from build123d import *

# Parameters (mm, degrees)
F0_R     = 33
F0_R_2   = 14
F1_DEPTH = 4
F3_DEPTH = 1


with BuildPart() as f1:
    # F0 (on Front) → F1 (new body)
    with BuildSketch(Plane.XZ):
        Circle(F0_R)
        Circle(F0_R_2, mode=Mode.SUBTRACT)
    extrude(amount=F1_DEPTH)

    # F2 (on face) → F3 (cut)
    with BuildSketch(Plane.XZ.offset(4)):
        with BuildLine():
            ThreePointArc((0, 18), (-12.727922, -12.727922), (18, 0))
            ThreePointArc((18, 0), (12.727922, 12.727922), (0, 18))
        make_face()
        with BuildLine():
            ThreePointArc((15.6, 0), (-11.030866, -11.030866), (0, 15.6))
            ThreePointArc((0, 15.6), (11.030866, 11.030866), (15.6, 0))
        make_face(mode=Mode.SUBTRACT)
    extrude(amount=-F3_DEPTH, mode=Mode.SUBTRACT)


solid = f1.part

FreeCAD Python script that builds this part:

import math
import FreeCAD as App
import Part
import Sketcher

V = App.Vector

doc = App.newDocument("Part")
params = doc.addObject("Spreadsheet::Sheet", "Params")
for row, (alias, value) in enumerate([
    ("sketch1_diameter", "66 mm"),
    ("sketch1_diameter2", "28 mm"),
    ("pad1_length", "4 mm"),
    ("sketch2_radius", "18 mm"),
    ("sketch2_radius2", "15.599999 mm"),
    ("pocket1_length", "1 mm"),
], start=1):
    params.set(f"A{row}", alias)
    params.set(f"B{row}", "=" + value)
    params.setAlias(f"B{row}", alias)

body = doc.addObject("PartDesign::Body", "Body")

# Sketch on XZ plane
sketch1 = body.newObject("Sketcher::SketchObject", "Sketch")
sketch1.AttachmentSupport = (doc.getObject("XZ_Plane"), [""])
sketch1.MapMode = "FlatFace"
sketch1.addGeometry([
    Part.Circle(V(0, 0, 0), V(0, 0, 1), 33),
    Part.Circle(V(0, 0, 0), V(0, 0, 1), 14),
], False)
sketch1.addConstraint([
    Sketcher.Constraint("Coincident", 0, 3, -1, 1),
    Sketcher.Constraint("Coincident", 1, 3, -1, 1),
    Sketcher.Constraint("Diameter", 0, 66.0),
    Sketcher.Constraint("Diameter", 1, 28.0),
])
sketch1.setExpression("Constraints[2]", "Params.sketch1_diameter")
sketch1.setExpression("Constraints[3]", "Params.sketch1_diameter2")
pad1 = body.newObject("PartDesign::Pad", "Pad")
pad1.Profile = sketch1
pad1.setExpression("Length", "Params.pad1_length")

# Sketch on XZ plane
sketch2 = body.newObject("Sketcher::SketchObject", "Sketch001")
sketch2.AttachmentSupport = (doc.getObject("XZ_Plane"), [""])
sketch2.MapMode = "FlatFace"
sketch2.AttachmentOffset = App.Placement(V(0, 0, 4), App.Rotation())
sketch2.addGeometry([
    Part.ArcOfCircle(Part.Circle(V(0, 0, 0), V(0, 0, 1), 18), math.radians(90), math.radians(360)),
    Part.ArcOfCircle(Part.Circle(V(0, 0, 0), V(0, 0, 1), 18), math.radians(0), math.radians(90)),
    Part.ArcOfCircle(Part.Circle(V(0, 0, 0), V(0, 0, 1), 16), math.radians(0), math.radians(90)),
    Part.ArcOfCircle(Part.Circle(V(0, 0, 0), V(0, 0, 1), 16), math.radians(90), math.radians(360)),
], False)
sketch2.addConstraint([
    Sketcher.Constraint("Tangent", 0, 1, 1, 2),
    Sketcher.Constraint("Coincident", 1, 1, 0, 2),
    Sketcher.Constraint("Tangent", 2, 1, 3, 2),
    Sketcher.Constraint("Coincident", 3, 1, 2, 2),
    Sketcher.Constraint("Coincident", 0, 3, -1, 1),
    Sketcher.Constraint("Coincident", 2, 3, -1, 1),
    Sketcher.Constraint("PointOnObject", 0, 1, -2),
    Sketcher.Constraint("PointOnObject", 1, 1, -1),
    Sketcher.Constraint("PointOnObject", 2, 1, -1),
    Sketcher.Constraint("PointOnObject", 3, 1, -2),
    Sketcher.Constraint("Radius", 0, 18.0),
    Sketcher.Constraint("Radius", 2, 15.599999),
])
sketch2.setExpression("Constraints[10]", "Params.sketch2_radius")
sketch2.setExpression("Constraints[11]", "Params.sketch2_radius2")
pocket1 = body.newObject("PartDesign::Pocket", "Pocket")
pocket1.Profile = sketch2
pocket1.setExpression("Length", "Params.pocket1_length")

doc.recompute()
